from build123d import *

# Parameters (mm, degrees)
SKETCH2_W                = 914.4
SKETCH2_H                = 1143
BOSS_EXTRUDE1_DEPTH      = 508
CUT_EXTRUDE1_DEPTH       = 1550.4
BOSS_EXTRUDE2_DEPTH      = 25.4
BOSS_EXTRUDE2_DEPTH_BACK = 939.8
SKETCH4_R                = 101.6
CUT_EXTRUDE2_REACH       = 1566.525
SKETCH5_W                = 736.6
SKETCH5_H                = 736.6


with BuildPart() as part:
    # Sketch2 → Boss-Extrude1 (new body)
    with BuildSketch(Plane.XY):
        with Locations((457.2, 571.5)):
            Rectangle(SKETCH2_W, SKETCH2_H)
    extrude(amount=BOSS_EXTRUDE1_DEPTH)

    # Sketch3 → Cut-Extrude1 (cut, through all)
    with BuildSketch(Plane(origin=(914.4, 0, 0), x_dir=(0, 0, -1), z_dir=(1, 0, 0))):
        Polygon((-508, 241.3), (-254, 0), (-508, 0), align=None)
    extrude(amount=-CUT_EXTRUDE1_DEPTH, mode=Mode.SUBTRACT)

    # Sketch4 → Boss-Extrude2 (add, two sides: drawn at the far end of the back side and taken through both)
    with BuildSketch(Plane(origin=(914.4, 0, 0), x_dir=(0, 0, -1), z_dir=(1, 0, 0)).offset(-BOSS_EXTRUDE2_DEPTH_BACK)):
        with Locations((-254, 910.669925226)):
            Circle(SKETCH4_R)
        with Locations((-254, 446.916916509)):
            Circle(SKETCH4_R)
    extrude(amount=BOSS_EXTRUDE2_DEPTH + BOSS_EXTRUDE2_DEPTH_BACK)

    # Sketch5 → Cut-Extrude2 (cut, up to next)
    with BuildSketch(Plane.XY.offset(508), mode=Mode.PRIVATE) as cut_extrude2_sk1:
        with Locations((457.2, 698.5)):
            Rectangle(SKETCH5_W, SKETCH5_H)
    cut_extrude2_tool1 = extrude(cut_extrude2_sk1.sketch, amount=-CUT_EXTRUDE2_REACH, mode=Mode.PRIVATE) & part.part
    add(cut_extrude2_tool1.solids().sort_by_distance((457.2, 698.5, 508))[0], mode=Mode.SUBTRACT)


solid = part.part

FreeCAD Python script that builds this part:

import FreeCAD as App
import Part
import Sketcher
Q = App.Units.Quantity


def add_polygon(sketch, points):
    """Adds a closed chain of lines whose ends are joined by coincident constraints."""
    first, n = sketch.GeometryCount, len(points)
    for a, b in zip(points, points[1:] + points[:1]):
        sketch.addGeometry(Part.LineSegment(App.Vector(*a, 0), App.Vector(*b, 0)), False)
    for i in range(n):
        sketch.addConstraint(Sketcher.Constraint("Coincident", first + i, 2, first + (i + 1) % n, 1))

doc = App.newDocument("Part")
body = doc.addObject("PartDesign::Body", "Body")

# Sketch on XY plane
sketch1 = body.newObject("Sketcher::SketchObject", "Sketch")
sketch1.AttachmentSupport = (doc.getObject("XY_Plane"), [""])
sketch1.MapMode = "FlatFace"
add_polygon(sketch1, [(0, 1143), (0, 0), (914, 0), (914, 1143)])  # lines 0-3
sketch1.addConstraint(Sketcher.Constraint("Vertical", 0))
sketch1.addConstraint(Sketcher.Constraint("Horizontal", 1))
sketch1.addConstraint(Sketcher.Constraint("Vertical", 2))
sketch1.addConstraint(Sketcher.Constraint("Horizontal", 3))
sketch1.addConstraint(Sketcher.Constraint("Coincident", 0, 2, -1, 1))
sketch1.addConstraint(Sketcher.Constraint("DistanceX", 1, 1, 1, 2, Q("36 in")))
sketch1.addConstraint(Sketcher.Constraint("DistanceY", 0, 2, 0, 1, Q("45 in")))
pad1 = body.newObject("PartDesign::Pad", "Pad")
pad1.Profile = sketch1
pad1.Length = Q("20 in")

# Sketch on YZ plane
sketch2 = body.newObject("Sketcher::SketchObject", "Sketch001")
sketch2.AttachmentSupport = (doc.getObject("YZ_Plane"), [""])
sketch2.MapMode = "FlatFace"
sketch2.AttachmentOffset = App.Placement(App.Vector(0, 0, 36 * 25.4), App.Rotation())
add_polygon(sketch2, [(0, 254), (241, 508), (0, 508)])  # lines 0-2
sketch2.addConstraint(Sketcher.Constraint("Horizontal", 1))
sketch2.addConstraint(Sketcher.Constraint("Vertical", 2))
sketch2.addConstraint(Sketcher.Constraint("PointOnObject", 1, 2, -2))
sketch2.addConstraint(Sketcher.Constraint("DistanceY", 2, 2, 2, 1, Q("10 in")))
sketch2.addConstraint(Sketcher.Constraint("DistanceX", 1, 2, 1, 1, Q("9.5 in")))
sketch2.addConstraint(Sketcher.Constraint("DistanceY", -1, 1, 0, 2, Q("20 in")))
pocket1 = body.newObject("PartDesign::Pocket", "Pocket")
pocket1.Profile = sketch2
pocket1.Type = "ThroughAll"

# Sketch on YZ plane
sketch3 = body.newObject("Sketcher::SketchObject", "Sketch002")
sketch3.AttachmentSupport = (doc.getObject("YZ_Plane"), [""])
sketch3.MapMode = "FlatFace"
sketch3.AttachmentOffset = App.Placement(App.Vector(0, 0, 36 * 25.4), App.Rotation())
sketch3.addGeometry(Part.Circle(App.Vector(911, 254, 0), App.Vector(0, 0, 1), 102), False)
sketch3.addGeometry(Part.Circle(App.Vector(447, 254, 0), App.Vector(0, 0, 1), 102), False)
sketch3.addConstraint(Sketcher.Constraint("Equal", 0, 1))
sketch3.addConstraint(Sketcher.Constraint("Horizontal", 0, 3, 1, 3))
sketch3.addConstraint(Sketcher.Constraint("Diameter", 0, Q("8 in")))
sketch3.addConstraint(Sketcher.Constraint("DistanceY", -1, 1, 0, 3, Q("10 in")))
sketch3.addConstraint(Sketcher.Constraint("DistanceX", 1, 3, 0, 3, 463.753009))
sketch3.addConstraint(Sketcher.Constraint("DistanceX", -1, 1, 0, 3, 910.669925))
pad2 = body.newObject("PartDesign::Pad", "Pad001")
pad2.Profile = sketch3
pad2.Type = "TwoLengths"
pad2.Length = Q("1 in")
pad2.Length2 = Q("37 in")

# Sketch on XY plane
sketch4 = body.newObject("Sketcher::SketchObject", "Sketch003")
sketch4.AttachmentSupport = (doc.getObject("XY_Plane"), [""])
sketch4.MapMode = "FlatFace"
sketch4.AttachmentOffset = App.Placement(App.Vector(0, 0, 20 * 25.4), App.Rotation())
add_polygon(sketch4, [(89, 1067), (89, 330), (826, 330), (826, 1067)])  # lines 0-3
sketch4.addConstraint(Sketcher.Constraint("Vertical", 0))
sketch4.addConstraint(Sketcher.Constraint("Horizontal", 1))
sketch4.addConstraint(Sketcher.Constraint("Vertical", 2))
sketch4.addConstraint(Sketcher.Constraint("Horizontal", 3))
sketch4.addConstraint(Sketcher.Constraint("Equal", 3, 0))
sketch4.addConstraint(Sketcher.Constraint("DistanceX", 1, 1, 1, 2, Q("29 in")))
sketch4.addConstraint(Sketcher.Constraint("DistanceY", -1, 1, 0, 2, Q("13 in")))
sketch4.addConstraint(Sketcher.Constraint("DistanceX", -1, 1, 0, 2, Q("3.5 in")))
pocket2 = body.newObject("PartDesign::Pocket", "Pocket001")
pocket2.Profile = sketch4
pocket2.Type = "UpToFirst"

doc.recompute()
